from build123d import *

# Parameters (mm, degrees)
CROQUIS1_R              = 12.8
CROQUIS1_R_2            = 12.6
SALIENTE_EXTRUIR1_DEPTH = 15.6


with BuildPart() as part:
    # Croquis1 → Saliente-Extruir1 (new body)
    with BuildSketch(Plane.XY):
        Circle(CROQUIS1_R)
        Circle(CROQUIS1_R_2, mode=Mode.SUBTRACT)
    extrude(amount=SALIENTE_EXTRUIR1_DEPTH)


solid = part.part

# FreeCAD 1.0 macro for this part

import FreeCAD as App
import Part
import Sketcher

V = App.Vector
Q = App.Units.Quantity

doc = App.newDocument("Part")
body = doc.addObject("PartDesign::Body", "Body")

# Sketch on XY plane
sketch1 = body.newObject("Sketcher::SketchObject", "Sketch")
sketch1.AttachmentSupport = (doc.getObject("XY_Plane"), [""])
sketch1.MapMode = "FlatFace"
sketch1.addGeometry([
    Part.Circle(V(0, 0, 0), V(0, 0, 1), 12.8),
    Part.Circle(V(0, 0, 0), V(0, 0, 1), 12.6),
], False)
sketch1.addConstraint([
    Sketcher.Constraint("Coincident", 0, 3, -1, 1),
    Sketcher.Constraint("Coincident", 1, 3, -1, 1),
    Sketcher.Constraint("Diameter", 0, Q("25.6 mm")),
    Sketcher.Constraint("Diameter", 1, Q("25.2 mm")),
])
pad1 = body.newObject("PartDesign::Pad", "Pad")
pad1.Profile = sketch1
pad1.Length = 15.6

doc.recompute()
